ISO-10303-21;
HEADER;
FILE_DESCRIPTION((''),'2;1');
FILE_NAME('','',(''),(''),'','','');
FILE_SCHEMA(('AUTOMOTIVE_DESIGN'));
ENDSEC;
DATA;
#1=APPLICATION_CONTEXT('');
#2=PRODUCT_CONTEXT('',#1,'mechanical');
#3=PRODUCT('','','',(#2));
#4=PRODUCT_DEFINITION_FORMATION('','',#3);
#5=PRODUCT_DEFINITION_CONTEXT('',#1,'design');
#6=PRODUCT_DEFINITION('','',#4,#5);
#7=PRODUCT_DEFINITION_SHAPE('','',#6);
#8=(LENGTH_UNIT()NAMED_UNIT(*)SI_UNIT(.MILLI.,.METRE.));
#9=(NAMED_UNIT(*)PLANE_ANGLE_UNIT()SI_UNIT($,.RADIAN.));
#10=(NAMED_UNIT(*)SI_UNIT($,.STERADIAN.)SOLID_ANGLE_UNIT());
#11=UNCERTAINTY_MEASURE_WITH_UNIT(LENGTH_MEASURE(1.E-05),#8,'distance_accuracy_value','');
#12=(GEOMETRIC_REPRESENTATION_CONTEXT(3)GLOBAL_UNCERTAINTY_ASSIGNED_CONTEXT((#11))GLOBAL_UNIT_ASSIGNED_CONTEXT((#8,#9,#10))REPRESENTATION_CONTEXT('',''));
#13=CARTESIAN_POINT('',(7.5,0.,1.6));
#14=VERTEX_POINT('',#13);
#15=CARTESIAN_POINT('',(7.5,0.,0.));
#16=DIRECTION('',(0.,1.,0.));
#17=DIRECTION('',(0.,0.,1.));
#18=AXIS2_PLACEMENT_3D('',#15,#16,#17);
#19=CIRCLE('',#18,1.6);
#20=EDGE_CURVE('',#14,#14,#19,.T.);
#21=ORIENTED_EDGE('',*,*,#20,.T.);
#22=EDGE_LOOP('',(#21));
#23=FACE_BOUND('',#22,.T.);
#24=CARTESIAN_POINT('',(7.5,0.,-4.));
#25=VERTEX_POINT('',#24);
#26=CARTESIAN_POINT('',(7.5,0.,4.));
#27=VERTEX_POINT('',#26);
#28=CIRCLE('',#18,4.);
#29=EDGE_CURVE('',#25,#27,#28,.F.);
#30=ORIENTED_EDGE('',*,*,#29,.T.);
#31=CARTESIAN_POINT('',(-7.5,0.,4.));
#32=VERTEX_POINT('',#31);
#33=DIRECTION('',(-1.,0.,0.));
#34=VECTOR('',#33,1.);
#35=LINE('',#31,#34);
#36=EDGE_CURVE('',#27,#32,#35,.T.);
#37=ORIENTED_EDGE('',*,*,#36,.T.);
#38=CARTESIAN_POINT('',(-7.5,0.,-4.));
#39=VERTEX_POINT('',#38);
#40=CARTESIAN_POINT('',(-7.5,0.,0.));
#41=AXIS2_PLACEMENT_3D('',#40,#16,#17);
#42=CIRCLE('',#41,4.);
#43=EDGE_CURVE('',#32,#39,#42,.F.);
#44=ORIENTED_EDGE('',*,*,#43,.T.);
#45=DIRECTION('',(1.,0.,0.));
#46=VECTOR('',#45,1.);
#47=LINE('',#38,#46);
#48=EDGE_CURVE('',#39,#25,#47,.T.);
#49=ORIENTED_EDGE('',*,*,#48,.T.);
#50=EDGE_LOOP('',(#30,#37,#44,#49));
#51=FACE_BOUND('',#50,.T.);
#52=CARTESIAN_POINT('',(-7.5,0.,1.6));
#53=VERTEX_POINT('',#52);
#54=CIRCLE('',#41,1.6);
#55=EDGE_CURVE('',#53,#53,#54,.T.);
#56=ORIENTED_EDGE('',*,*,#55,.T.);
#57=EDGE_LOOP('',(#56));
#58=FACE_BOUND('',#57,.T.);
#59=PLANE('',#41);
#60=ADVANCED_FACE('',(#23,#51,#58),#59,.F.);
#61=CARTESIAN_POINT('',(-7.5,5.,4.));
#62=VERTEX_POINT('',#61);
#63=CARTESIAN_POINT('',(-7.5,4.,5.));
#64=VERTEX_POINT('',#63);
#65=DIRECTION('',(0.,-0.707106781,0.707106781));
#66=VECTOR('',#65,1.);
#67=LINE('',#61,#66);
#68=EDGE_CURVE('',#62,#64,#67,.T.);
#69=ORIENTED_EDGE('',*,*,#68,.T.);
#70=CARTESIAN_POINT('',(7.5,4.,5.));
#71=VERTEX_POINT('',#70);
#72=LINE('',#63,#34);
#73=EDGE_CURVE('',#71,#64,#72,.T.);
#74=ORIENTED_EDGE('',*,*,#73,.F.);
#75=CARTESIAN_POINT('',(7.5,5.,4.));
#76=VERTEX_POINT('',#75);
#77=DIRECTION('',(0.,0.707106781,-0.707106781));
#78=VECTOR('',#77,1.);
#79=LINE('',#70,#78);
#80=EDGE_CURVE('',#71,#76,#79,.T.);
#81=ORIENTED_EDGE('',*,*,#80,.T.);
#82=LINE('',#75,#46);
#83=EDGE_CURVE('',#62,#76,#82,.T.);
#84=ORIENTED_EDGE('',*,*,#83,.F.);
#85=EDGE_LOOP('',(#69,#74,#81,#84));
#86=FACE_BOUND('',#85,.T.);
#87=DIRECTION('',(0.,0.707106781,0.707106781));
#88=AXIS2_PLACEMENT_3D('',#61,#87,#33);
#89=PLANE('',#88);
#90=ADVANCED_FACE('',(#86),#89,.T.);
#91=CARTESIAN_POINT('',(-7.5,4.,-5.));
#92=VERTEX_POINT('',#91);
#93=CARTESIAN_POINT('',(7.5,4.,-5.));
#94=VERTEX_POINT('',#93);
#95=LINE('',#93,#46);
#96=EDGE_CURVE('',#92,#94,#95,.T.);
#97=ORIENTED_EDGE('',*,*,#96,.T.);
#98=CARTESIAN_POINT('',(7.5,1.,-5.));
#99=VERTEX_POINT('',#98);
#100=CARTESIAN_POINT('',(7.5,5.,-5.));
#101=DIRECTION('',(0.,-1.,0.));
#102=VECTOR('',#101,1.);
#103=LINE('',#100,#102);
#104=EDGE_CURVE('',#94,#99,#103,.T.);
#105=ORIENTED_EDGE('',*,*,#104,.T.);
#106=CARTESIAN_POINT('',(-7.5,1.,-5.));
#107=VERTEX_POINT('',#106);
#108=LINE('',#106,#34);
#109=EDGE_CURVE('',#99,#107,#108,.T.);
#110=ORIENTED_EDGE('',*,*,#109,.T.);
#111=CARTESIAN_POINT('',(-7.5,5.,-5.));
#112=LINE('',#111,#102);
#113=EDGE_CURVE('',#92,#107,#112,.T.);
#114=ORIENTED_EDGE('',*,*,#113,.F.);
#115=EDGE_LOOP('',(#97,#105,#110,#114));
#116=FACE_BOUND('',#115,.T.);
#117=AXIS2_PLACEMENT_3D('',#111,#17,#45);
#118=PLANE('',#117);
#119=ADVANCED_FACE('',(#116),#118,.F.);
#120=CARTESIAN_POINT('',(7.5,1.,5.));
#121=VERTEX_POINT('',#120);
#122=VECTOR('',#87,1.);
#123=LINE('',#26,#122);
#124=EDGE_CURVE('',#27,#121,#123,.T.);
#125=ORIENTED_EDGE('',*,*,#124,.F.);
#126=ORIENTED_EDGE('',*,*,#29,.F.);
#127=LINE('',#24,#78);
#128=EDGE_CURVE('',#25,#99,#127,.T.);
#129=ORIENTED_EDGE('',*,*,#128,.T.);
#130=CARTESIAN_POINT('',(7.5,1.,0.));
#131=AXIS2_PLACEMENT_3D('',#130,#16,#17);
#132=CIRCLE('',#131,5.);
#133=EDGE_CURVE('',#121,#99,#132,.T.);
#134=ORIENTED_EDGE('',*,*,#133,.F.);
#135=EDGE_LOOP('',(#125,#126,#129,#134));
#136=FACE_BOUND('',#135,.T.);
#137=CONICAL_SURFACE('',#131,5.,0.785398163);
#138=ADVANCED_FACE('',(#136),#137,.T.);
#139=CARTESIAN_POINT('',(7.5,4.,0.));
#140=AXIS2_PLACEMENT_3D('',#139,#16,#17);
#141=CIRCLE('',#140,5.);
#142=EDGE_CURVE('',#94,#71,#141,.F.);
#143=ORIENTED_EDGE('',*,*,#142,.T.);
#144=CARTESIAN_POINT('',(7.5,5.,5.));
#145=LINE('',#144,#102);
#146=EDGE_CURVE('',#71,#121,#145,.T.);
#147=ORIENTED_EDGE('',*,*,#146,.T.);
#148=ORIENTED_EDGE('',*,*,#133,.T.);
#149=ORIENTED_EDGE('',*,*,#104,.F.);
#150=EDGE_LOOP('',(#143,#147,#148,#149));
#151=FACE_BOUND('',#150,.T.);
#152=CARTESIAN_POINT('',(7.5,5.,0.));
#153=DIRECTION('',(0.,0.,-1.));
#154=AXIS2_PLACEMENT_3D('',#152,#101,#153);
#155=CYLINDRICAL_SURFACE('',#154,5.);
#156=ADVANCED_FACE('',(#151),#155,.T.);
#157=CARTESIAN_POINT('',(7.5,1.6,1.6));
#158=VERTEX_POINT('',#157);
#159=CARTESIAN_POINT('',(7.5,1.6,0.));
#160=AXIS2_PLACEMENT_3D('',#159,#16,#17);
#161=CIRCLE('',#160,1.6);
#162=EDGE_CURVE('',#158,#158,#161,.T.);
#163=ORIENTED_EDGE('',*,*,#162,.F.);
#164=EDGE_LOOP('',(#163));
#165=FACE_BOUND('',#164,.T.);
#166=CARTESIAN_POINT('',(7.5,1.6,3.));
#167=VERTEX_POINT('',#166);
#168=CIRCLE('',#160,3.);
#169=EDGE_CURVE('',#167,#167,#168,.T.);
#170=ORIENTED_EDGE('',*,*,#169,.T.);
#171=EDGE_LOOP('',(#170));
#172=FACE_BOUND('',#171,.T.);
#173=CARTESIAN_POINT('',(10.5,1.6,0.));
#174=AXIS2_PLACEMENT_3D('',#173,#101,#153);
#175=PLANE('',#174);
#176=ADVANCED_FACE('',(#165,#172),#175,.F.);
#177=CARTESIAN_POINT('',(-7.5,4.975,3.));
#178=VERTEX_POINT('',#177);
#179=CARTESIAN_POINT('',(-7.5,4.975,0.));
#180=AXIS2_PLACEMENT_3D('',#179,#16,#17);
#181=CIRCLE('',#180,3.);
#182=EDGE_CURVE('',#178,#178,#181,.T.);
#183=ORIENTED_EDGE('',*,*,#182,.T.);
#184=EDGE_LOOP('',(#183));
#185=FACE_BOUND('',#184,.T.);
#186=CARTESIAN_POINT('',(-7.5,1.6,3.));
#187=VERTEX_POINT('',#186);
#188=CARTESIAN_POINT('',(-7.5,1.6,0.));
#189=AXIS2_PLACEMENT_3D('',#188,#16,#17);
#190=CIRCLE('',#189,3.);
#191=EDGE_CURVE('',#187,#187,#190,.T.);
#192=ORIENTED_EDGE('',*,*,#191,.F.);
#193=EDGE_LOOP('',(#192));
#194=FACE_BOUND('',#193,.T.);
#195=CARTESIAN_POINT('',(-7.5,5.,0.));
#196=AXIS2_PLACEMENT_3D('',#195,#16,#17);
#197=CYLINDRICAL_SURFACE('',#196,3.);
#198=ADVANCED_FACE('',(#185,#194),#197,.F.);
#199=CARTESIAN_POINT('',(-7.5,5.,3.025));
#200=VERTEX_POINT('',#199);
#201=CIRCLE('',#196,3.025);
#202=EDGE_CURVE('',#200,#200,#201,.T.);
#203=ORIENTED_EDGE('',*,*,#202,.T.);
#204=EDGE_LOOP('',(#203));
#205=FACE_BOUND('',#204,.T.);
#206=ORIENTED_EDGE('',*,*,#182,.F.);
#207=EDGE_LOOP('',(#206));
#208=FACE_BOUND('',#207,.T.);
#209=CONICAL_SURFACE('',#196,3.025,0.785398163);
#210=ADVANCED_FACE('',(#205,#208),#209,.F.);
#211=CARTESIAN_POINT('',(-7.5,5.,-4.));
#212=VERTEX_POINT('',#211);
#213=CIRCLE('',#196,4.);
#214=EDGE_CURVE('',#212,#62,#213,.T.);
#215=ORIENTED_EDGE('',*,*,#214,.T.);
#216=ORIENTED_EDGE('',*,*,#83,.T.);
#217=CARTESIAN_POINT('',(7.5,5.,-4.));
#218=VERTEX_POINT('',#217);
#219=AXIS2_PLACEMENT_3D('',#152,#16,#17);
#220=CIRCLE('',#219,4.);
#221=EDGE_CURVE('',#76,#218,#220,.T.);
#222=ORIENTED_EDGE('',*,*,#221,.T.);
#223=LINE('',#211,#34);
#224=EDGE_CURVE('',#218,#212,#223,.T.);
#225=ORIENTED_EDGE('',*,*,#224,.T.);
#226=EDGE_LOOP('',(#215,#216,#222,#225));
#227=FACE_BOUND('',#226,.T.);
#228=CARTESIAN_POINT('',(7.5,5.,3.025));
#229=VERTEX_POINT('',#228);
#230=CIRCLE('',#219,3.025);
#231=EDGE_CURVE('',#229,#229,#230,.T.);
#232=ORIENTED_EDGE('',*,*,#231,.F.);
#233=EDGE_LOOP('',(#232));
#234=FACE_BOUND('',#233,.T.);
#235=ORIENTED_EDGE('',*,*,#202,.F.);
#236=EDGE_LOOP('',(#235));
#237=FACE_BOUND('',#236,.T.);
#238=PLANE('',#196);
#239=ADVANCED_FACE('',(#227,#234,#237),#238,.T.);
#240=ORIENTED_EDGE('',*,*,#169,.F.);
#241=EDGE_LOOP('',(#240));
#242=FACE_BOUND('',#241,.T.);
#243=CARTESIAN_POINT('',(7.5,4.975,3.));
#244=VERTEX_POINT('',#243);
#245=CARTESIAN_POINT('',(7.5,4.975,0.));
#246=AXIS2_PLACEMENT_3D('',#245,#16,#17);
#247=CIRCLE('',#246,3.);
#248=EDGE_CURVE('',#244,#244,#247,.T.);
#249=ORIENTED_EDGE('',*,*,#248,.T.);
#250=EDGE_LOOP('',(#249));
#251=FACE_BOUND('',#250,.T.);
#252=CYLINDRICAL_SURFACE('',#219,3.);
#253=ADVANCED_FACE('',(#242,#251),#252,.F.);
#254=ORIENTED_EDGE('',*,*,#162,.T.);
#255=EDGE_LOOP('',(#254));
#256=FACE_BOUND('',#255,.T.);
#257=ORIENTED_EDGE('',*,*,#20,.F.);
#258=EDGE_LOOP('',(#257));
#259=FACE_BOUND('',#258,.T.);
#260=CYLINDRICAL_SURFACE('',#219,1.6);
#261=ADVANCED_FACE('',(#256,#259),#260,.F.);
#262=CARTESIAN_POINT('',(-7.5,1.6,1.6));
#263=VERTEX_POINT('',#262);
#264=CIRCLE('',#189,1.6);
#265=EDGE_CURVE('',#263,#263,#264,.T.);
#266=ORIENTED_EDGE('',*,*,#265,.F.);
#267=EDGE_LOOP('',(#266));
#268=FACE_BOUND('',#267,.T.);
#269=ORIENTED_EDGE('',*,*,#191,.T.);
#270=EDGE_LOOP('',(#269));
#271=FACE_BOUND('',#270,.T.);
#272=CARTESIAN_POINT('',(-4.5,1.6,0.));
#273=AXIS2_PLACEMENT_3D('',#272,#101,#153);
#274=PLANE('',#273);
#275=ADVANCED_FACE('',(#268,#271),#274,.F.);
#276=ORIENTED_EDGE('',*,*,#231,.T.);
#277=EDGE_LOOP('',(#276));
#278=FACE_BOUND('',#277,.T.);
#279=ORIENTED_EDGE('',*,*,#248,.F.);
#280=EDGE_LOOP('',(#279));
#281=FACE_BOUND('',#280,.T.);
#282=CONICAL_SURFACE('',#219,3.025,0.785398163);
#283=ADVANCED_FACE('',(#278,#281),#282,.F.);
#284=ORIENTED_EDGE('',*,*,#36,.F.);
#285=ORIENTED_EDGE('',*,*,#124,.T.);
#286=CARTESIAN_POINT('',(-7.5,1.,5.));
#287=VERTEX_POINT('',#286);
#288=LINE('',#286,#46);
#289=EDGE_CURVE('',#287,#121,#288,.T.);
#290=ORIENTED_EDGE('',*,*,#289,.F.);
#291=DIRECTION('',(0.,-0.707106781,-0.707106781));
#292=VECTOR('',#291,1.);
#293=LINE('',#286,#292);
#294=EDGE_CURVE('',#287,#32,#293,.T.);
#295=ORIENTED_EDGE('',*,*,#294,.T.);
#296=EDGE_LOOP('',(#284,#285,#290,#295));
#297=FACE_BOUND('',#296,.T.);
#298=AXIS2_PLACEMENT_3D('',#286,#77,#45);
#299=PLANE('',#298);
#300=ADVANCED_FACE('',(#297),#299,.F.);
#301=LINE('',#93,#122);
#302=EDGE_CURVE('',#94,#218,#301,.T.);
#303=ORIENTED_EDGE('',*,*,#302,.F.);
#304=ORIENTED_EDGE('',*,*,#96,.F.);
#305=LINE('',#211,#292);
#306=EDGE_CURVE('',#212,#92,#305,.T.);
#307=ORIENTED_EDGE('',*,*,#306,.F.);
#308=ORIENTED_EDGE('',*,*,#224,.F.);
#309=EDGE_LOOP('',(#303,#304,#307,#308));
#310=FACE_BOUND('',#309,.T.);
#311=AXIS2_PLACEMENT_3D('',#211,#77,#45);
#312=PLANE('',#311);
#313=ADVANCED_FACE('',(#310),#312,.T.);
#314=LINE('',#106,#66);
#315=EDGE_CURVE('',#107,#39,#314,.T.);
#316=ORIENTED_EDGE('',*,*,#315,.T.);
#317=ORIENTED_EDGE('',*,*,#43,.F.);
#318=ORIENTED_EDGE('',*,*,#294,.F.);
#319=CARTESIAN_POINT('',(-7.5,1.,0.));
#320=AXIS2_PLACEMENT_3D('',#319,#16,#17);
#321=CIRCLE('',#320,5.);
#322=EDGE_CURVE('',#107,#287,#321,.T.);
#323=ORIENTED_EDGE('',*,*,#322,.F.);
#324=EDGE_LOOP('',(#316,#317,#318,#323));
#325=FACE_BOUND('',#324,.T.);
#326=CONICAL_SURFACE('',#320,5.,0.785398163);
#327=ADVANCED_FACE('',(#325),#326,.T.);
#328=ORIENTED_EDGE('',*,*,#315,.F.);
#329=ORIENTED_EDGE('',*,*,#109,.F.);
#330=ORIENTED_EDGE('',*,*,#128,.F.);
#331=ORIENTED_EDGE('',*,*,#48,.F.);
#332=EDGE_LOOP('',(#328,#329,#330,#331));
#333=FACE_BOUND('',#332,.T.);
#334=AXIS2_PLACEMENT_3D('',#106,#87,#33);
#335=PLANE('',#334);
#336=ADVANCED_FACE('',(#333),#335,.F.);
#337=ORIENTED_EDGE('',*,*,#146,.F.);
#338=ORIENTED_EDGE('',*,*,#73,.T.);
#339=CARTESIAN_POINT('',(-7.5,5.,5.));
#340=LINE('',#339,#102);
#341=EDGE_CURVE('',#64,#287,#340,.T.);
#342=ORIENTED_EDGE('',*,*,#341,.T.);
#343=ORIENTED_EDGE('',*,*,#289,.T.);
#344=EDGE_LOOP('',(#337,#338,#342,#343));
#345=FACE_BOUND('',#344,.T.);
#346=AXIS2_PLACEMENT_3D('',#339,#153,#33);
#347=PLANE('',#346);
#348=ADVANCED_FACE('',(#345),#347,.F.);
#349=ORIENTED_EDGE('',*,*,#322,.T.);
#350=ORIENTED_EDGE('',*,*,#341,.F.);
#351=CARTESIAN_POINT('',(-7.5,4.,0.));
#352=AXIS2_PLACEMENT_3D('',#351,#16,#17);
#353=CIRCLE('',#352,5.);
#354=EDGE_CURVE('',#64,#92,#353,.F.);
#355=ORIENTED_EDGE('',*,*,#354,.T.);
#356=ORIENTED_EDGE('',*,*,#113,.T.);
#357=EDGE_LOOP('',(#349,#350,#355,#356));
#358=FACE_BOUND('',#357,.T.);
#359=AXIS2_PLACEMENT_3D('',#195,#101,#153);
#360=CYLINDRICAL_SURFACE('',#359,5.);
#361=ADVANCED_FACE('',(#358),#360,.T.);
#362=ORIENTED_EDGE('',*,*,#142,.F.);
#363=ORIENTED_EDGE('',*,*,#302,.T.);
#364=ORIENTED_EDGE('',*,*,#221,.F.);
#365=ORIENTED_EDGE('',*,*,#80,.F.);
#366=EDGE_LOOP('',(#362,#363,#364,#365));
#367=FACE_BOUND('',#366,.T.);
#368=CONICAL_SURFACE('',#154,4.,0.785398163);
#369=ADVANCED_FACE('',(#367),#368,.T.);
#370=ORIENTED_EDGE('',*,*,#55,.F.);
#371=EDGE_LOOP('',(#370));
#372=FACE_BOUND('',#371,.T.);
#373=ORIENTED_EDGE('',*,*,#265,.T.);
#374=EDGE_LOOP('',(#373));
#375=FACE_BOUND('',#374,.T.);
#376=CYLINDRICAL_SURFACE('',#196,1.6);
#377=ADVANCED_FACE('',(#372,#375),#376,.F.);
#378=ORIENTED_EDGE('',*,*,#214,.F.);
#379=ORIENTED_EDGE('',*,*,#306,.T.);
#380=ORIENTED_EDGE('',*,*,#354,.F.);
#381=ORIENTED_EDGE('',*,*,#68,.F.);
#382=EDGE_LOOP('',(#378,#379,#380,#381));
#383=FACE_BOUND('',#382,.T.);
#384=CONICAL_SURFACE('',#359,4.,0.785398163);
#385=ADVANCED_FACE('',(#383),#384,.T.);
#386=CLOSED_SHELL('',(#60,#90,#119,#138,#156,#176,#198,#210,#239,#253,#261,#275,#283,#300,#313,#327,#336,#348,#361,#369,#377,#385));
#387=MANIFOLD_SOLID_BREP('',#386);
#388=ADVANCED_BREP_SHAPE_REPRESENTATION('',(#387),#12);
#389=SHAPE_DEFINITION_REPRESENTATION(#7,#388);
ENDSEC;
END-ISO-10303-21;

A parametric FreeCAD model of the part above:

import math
import FreeCAD as App
import Part
import Sketcher
Q = App.Units.Quantity


def edges_at(feature, points):
    """Names of the edges that pass closest to the given points."""
    edges = feature.Shape.Edges
    near = lambda p: min(range(len(edges)), key=lambda i: edges[i].distToShape(Part.Vertex(*p))[0])
    return sorted({f"Edge{near(p) + 1}" for p in points})


def add_polygon(sketch, points):
    """Adds a closed chain of lines whose ends are joined by coincident constraints."""
    first, n = sketch.GeometryCount, len(points)
    for a, b in zip(points, points[1:] + points[:1]):
        sketch.addGeometry(Part.LineSegment(App.Vector(*a, 0), App.Vector(*b, 0)), False)
    for i in range(n):
        sketch.addConstraint(Sketcher.Constraint("Coincident", first + i, 2, first + (i + 1) % n, 1))

doc = App.newDocument("Part")
params = doc.addObject("Spreadsheet::Sheet", "Params")
for row, (alias, value) in enumerate([
    ("sketch1_radius", "5 mm"),
    ("sketch1_width", "15 mm"),
    ("pad1_length", "5 mm"),
    ("sketch2_width", "5 mm"),
    ("sketch2_width2", "1.6 mm"),
    ("sketch2_height", "1.4 mm"),
    ("groove_angle", "360 deg"),
    ("linearpattern_pitch", "15 mm"),
    ("chamfer_size", "1 mm"),
], start=1):
    params.set(f"A{row}", alias)
    params.set(f"B{row}", "=" + value)
    params.setAlias(f"B{row}", alias)

body = doc.addObject("PartDesign::Body", "Body")

# Sketch on XZ plane
sketch1 = body.newObject("Sketcher::SketchObject", "Sketch")
sketch1.AttachmentSupport = (doc.getObject("XZ_Plane"), [""])
sketch1.MapMode = "FlatFace"
sketch1.addGeometry([
    Part.LineSegment(App.Vector(8, -5, 0), App.Vector(-8, -5, 0)),
    Part.ArcOfCircle(Part.Circle(App.Vector(-8, 0, 0), App.Vector(0, 0, 1), 5), math.radians(90), math.radians(270)),
    Part.LineSegment(App.Vector(-8, 5, 0), App.Vector(8, 5, 0)),
    Part.ArcOfCircle(Part.Circle(App.Vector(8, 0, 0), App.Vector(0, 0, 1), 5), math.radians(-90), math.radians(90)),
], False)
sketch1.addConstraint([
    Sketcher.Constraint("Tangent", 0, 2, 1, 2),
    Sketcher.Constraint("Tangent", 1, 1, 2, 1),
    Sketcher.Constraint("Tangent", 2, 2, 3, 2),
    Sketcher.Constraint("Tangent", 3, 1, 0, 1),
    Sketcher.Constraint("Horizontal", 0),
    Sketcher.Constraint("Horizontal", 2),
    Sketcher.Constraint("Symmetric", 1, 3, 3, 3, -1, 1),
    Sketcher.Constraint("Radius", 1, Q("5 mm")),
    Sketcher.Constraint("DistanceX", 0, 2, 0, 1, Q("15 mm")),
])
sketch1.setExpression("Constraints[7]", "Params.sketch1_radius")
sketch1.setExpression("Constraints[8]", "Params.sketch1_width")
pad1 = body.newObject("PartDesign::Pad", "Pad")
pad1.Profile = sketch1
pad1.setExpression("Length", "Params.pad1_length")
pad1.Reversed = True

# Sketch on YZ plane
sketch2 = body.newObject("Sketcher::SketchObject", "Sketch001")
sketch2.AttachmentSupport = (doc.getObject("YZ_Plane"), [""])
sketch2.MapMode = "FlatFace"
sketch2.AttachmentOffset = App.Placement(App.Vector(0, 0, -7.5), App.Rotation())
add_polygon(sketch2, [(0, 0), (5, 0), (5, 3.025), (4.975, 3), (1.6, 3), (1.6, 1.6), (0, 1.6)])  # lines 0-6
sketch2.addConstraint([
    Sketcher.Constraint("Horizontal", 0),
    Sketcher.Constraint("Vertical", 1),
    Sketcher.Constraint("Horizontal", 3),
    Sketcher.Constraint("Vertical", 4),
    Sketcher.Constraint("Horizontal", 5),
    Sketcher.Constraint("Vertical", 6),
    Sketcher.Constraint("Coincident", 6, 2, -1, 1),
    Sketcher.Constraint("Equal", 5, 6),
    Sketcher.Constraint("DistanceX", 0, 1, 0, 2, Q("5 mm")),
    Sketcher.Constraint("Angle", 2, Q("-135 deg")),
    Sketcher.Constraint("DistanceX", 5, 2, 5, 1, Q("1.6 mm")),
    Sketcher.Constraint("DistanceY", 4, 2, 4, 1, Q("1.4 mm")),
    Sketcher.Constraint("DistanceX", 3, 2, 3, 1, Q("3.375 mm")),
])
sketch2.setExpression("Constraints[15]", "Params.sketch2_width")
sketch2.setExpression("Constraints[17]", "Params.sketch2_width2")
sketch2.setExpression("Constraints[18]", "Params.sketch2_height")
groove = body.newObject("PartDesign::Groove", "Groove")
groove.Profile = sketch2
groove.ReferenceAxis = (sketch2, ["H_Axis"])
groove.setExpression("Angle", "Params.groove_angle")
doc.recompute()

linearpattern = body.newObject("PartDesign::LinearPattern", "LinearPattern")
linearpattern.Originals = [groove]
linearpattern.Direction = (doc.getObject("X_Axis"), [""])
linearpattern.Mode = "offset"
linearpattern.setExpression("Offset", "Params.linearpattern_pitch")
linearpattern.Occurrences = 2
body.Tip = linearpattern
doc.recompute()

chamfer = body.newObject("PartDesign::Chamfer", "Chamfer")
chamfer.Base = (linearpattern, edges_at(linearpattern, [
    (12.5, 5, 0),
    (0, 5, -5),
    (-12.5, 5, 0),
    (0, 0, -5),
    (12.5, 0, 0),
    (0, 0, 5),
    (-12.5, 0, 0),
    (0, 5, 5),
]))
chamfer.setExpression("Size", "Params.chamfer_size")

doc.recompute()
